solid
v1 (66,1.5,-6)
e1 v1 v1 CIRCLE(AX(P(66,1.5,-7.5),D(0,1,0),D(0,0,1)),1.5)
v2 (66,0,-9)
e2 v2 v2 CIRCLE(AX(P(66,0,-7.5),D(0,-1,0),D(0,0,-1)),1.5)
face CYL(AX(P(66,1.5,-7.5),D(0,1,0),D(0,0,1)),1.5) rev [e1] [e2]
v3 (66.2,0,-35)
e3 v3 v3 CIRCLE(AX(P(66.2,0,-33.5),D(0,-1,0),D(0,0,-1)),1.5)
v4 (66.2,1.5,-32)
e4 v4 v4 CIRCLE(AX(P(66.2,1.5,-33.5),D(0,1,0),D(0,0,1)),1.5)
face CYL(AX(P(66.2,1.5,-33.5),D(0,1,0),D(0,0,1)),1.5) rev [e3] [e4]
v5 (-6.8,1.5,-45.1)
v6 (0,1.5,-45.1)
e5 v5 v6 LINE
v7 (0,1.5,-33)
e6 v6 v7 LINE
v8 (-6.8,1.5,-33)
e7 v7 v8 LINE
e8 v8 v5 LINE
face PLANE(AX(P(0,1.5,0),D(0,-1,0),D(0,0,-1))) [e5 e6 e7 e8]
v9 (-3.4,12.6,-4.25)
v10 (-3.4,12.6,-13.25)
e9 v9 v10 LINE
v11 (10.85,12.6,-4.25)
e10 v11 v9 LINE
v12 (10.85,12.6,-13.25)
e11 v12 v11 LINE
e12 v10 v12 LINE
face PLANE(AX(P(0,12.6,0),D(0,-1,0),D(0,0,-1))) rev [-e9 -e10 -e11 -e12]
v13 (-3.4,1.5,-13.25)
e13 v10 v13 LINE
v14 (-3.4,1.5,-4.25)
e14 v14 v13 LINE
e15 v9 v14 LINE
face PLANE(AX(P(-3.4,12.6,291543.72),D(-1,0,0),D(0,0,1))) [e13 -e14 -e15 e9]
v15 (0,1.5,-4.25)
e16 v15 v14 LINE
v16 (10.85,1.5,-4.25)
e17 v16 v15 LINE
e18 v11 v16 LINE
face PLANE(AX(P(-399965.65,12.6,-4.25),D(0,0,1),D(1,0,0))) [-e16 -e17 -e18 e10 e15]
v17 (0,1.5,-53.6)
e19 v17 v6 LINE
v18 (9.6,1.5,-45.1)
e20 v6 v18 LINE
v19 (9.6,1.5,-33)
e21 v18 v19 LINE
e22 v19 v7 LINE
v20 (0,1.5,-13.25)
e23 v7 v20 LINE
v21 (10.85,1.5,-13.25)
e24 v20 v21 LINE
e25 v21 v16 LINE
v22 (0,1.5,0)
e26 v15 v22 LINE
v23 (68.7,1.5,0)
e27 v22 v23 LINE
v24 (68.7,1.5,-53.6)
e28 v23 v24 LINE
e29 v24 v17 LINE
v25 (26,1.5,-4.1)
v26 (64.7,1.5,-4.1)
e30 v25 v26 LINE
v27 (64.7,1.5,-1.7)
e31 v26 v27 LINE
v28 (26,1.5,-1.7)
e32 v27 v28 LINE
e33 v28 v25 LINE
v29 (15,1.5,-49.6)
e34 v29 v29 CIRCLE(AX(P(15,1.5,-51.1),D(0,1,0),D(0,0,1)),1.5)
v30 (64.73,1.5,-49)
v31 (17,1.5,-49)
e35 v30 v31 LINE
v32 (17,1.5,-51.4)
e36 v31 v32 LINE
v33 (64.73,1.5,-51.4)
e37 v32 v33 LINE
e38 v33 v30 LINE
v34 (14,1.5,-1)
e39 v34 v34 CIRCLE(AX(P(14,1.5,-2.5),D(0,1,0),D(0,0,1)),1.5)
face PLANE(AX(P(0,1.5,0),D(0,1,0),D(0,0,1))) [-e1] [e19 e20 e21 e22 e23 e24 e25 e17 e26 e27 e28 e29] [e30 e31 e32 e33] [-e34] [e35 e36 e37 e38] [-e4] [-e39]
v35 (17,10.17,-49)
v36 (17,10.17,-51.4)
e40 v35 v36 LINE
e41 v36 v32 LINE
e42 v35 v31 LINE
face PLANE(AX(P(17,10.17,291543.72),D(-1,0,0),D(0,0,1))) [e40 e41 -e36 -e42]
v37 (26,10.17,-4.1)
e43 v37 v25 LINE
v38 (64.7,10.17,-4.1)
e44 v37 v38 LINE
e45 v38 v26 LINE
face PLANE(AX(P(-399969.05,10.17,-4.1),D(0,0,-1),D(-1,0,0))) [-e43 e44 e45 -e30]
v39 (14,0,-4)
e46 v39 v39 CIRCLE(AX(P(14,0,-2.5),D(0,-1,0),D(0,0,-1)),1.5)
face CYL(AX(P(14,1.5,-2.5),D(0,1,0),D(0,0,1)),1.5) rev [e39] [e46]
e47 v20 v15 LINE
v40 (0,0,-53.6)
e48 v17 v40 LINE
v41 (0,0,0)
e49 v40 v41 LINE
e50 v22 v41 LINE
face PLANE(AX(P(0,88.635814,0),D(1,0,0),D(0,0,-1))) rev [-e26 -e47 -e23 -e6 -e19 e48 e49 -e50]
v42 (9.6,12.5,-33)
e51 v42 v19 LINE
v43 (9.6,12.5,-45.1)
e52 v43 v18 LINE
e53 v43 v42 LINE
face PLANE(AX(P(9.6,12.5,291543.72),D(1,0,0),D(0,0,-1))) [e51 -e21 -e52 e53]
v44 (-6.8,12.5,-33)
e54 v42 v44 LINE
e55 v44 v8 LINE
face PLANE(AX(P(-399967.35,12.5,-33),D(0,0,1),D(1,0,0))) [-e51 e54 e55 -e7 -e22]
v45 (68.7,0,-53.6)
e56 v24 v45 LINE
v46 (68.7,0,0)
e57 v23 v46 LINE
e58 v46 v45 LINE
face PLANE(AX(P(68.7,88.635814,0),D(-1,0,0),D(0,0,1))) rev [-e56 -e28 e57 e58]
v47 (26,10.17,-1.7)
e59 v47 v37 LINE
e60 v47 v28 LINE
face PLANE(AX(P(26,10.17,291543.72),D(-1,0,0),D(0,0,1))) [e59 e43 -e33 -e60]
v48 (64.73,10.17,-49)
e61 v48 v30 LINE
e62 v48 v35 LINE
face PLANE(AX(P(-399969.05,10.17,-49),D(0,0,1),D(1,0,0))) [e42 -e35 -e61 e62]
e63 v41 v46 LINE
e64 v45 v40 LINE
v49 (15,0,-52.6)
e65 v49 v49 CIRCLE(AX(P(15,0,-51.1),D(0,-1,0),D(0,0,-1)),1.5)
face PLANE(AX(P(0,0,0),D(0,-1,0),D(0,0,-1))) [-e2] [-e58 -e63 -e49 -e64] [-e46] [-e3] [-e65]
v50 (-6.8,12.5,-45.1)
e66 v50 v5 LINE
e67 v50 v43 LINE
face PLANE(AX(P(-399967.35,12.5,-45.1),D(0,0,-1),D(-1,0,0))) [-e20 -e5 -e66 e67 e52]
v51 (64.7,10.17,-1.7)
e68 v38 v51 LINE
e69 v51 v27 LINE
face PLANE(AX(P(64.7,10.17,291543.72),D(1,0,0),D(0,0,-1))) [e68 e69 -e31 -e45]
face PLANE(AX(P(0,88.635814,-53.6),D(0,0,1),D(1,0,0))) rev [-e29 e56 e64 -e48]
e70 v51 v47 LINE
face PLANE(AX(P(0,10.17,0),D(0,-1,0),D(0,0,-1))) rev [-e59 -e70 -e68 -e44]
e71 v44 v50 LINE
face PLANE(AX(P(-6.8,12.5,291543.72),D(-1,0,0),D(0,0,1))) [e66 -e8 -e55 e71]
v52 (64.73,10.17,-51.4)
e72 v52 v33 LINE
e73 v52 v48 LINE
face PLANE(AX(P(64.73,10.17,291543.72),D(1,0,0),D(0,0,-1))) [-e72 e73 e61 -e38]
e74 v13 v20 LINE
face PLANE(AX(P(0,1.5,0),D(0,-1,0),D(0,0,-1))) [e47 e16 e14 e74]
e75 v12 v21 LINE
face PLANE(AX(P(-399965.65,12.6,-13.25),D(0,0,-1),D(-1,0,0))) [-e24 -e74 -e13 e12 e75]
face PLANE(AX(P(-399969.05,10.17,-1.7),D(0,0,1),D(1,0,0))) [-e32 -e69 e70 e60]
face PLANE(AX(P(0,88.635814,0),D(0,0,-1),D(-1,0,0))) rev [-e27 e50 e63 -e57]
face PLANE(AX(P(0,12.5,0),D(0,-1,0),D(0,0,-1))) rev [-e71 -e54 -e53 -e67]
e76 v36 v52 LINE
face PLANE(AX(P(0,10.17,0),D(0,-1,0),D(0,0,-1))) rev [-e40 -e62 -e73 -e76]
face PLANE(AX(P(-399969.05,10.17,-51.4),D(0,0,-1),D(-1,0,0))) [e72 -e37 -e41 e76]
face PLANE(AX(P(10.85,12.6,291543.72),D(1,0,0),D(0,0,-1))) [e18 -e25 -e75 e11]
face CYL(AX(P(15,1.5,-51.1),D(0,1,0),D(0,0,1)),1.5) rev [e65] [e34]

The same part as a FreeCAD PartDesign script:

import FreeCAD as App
import Part
import Sketcher
from FreeCAD import Vector
Q = App.Units.Quantity

doc = App.newDocument("Part")
body = doc.addObject("PartDesign::Body", "Body")

# Sketch on XZ plane
sketch1 = body.newObject("Sketcher::SketchObject", "Sketch")
sketch1.AttachmentSupport = (doc.getObject("XZ_Plane"), [""])
sketch1.MapMode = "FlatFace"
sketch1.addGeometry([
    Part.LineSegment(Vector(0, -54, 0), Vector(0, 0, 0)),
    Part.LineSegment(Vector(0, 0, 0), Vector(69, 0, 0)),
    Part.LineSegment(Vector(69, 0, 0), Vector(69, -54, 0)),
    Part.LineSegment(Vector(69, -54, 0), Vector(0, -54, 0)),
], False)
sketch1.addConstraint([
    Sketcher.Constraint("Coincident", 0, 2, 1, 1),
    Sketcher.Constraint("Coincident", 1, 2, 2, 1),
    Sketcher.Constraint("Coincident", 2, 2, 3, 1),
    Sketcher.Constraint("Coincident", 3, 2, 0, 1),
    Sketcher.Constraint("Vertical", 0),
    Sketcher.Constraint("Horizontal", 1),
    Sketcher.Constraint("Vertical", 2),
    Sketcher.Constraint("Horizontal", 3),
    Sketcher.Constraint("Coincident", 0, 2, -1, 1),
    Sketcher.Constraint("DistanceX", 1, 1, 1, 2, Q("68.7 mm")),
    Sketcher.Constraint("DistanceY", 0, 1, 0, 2, Q("53.6 mm")),
])
pad1 = body.newObject("PartDesign::Pad", "Pad")
pad1.Profile = sketch1
pad1.Length = 1.5
pad1.Reversed = True

# Sketch on XZ plane
sketch2 = body.newObject("Sketcher::SketchObject", "Sketch001")
sketch2.AttachmentSupport = (doc.getObject("XZ_Plane"), [""])
sketch2.MapMode = "FlatFace"
sketch2.AttachmentOffset = App.Placement(Vector(0, 0, -1.5), App.Rotation())
sketch2.addGeometry([
    Part.LineSegment(Vector(-3, -13, 0), Vector(-3, -4, 0)),
    Part.LineSegment(Vector(-3, -4, 0), Vector(11, -4, 0)),
    Part.LineSegment(Vector(11, -4, 0), Vector(11, -13, 0)),
    Part.LineSegment(Vector(11, -13, 0), Vector(-3, -13, 0)),
], False)
sketch2.addConstraint([
    Sketcher.Constraint("Coincident", 0, 2, 1, 1),
    Sketcher.Constraint("Coincident", 1, 2, 2, 1),
    Sketcher.Constraint("Coincident", 2, 2, 3, 1),
    Sketcher.Constraint("Coincident", 3, 2, 0, 1),
    Sketcher.Constraint("Vertical", 0),
    Sketcher.Constraint("Horizontal", 1),
    Sketcher.Constraint("Vertical", 2),
    Sketcher.Constraint("Horizontal", 3),
    Sketcher.Constraint("DistanceY", 0, 1, 0, 2, Q("9 mm")),
    Sketcher.Constraint("DistanceX", 1, 1, 1, 2, Q("14.25 mm")),
    Sketcher.Constraint("DistanceX", 0, 2, -1, 1, Q("3.4 mm")),
    Sketcher.Constraint("DistanceY", 0, 2, -1, 1, Q("4.25 mm")),
])
pad2 = body.newObject("PartDesign::Pad", "Pad001")
pad2.Profile = sketch2
pad2.Length = 11.1
pad2.Reversed = True

# Sketch on XZ plane
sketch3 = body.newObject("Sketcher::SketchObject", "Sketch002")
sketch3.AttachmentSupport = (doc.getObject("XZ_Plane"), [""])
sketch3.MapMode = "FlatFace"
sketch3.AttachmentOffset = App.Placement(Vector(0, 0, -1.5), App.Rotation())
sketch3.addGeometry([
    Part.LineSegment(Vector(-7, -45, 0), Vector(-7, -33, 0)),
    Part.LineSegment(Vector(-7, -33, 0), Vector(10, -33, 0)),
    Part.LineSegment(Vector(10, -33, 0), Vector(10, -45, 0)),
    Part.LineSegment(Vector(10, -45, 0), Vector(-7, -45, 0)),
], False)
sketch3.addConstraint([
    Sketcher.Constraint("Coincident", 0, 2, 1, 1),
    Sketcher.Constraint("Coincident", 1, 2, 2, 1),
    Sketcher.Constraint("Coincident", 2, 2, 3, 1),
    Sketcher.Constraint("Coincident", 3, 2, 0, 1),
    Sketcher.Constraint("Vertical", 0),
    Sketcher.Constraint("Horizontal", 1),
    Sketcher.Constraint("Vertical", 2),
    Sketcher.Constraint("Horizontal", 3),
    Sketcher.Constraint("DistanceX", 1, 1, 1, 2, Q("16.4 mm")),
    Sketcher.Constraint("DistanceY", 0, 1, 0, 2, Q("12.1 mm")),
    Sketcher.Constraint("DistanceY", 0, 2, -1, 1, Q("33 mm")),
    Sketcher.Constraint("DistanceX", 0, 2, -1, 1, Q("6.8 mm")),
])
pad3 = body.newObject("PartDesign::Pad", "Pad002")
pad3.Profile = sketch3
pad3.Length = 11
pad3.Reversed = True

# Sketch on XZ plane
sketch4 = body.newObject("Sketcher::SketchObject", "Sketch003")
sketch4.AttachmentSupport = (doc.getObject("XZ_Plane"), [""])
sketch4.MapMode = "FlatFace"
sketch4.AttachmentOffset = App.Placement(Vector(0, 0, -1.5), App.Rotation())
sketch4.addGeometry([
    Part.LineSegment(Vector(17, -51.4, 0), Vector(17, -49, 0)),  # 0
    Part.LineSegment(Vector(17, -49, 0), Vector(64.7, -49, 0)),  # 1
    Part.LineSegment(Vector(64.7, -49, 0), Vector(64.7, -51.4, 0)),  # 2
    Part.LineSegment(Vector(64.7, -51.4, 0), Vector(17, -51.4, 0)),  # 3
    Part.LineSegment(Vector(26, -4.1, 0), Vector(26, -1.7, 0)),  # 4
    Part.LineSegment(Vector(26, -1.7, 0), Vector(64.7, -1.7, 0)),  # 5
    Part.LineSegment(Vector(64.7, -1.7, 0), Vector(64.7, -4.1, 0)),  # 6
    Part.LineSegment(Vector(64.7, -4.1, 0), Vector(26, -4.1, 0)),  # 7
], False)
sketch4.addConstraint([
    Sketcher.Constraint("Coincident", 0, 2, 1, 1),
    Sketcher.Constraint("Coincident", 1, 2, 2, 1),
    Sketcher.Constraint("Coincident", 2, 2, 3, 1),
    Sketcher.Constraint("Coincident", 3, 2, 0, 1),
    Sketcher.Constraint("Coincident", 4, 2, 5, 1),
    Sketcher.Constraint("Coincident", 5, 2, 6, 1),
    Sketcher.Constraint("Coincident", 6, 2, 7, 1),
    Sketcher.Constraint("Coincident", 7, 2, 4, 1),
    Sketcher.Constraint("Vertical", 0),
    Sketcher.Constraint("Horizontal", 1),
    Sketcher.Constraint("Vertical", 2),
    Sketcher.Constraint("Horizontal", 3),
    Sketcher.Constraint("Vertical", 4),
    Sketcher.Constraint("Horizontal", 5),
    Sketcher.Constraint("Vertical", 6),
    Sketcher.Constraint("Horizontal", 7),
    Sketcher.Constraint("Equal", 2, 4),
    Sketcher.Constraint("DistanceX", 5, 1, 5, 2, Q("38.7 mm")),
    Sketcher.Constraint("DistanceY", 0, 1, 0, 2, Q("2.4 mm")),
    Sketcher.Constraint("DistanceX", -1, 1, 0, 2, Q("17 mm")),
    Sketcher.Constraint("DistanceY", 0, 2, -1, 1, Q("49 mm")),
    Sketcher.Constraint("DistanceX", -1, 1, 4, 2, Q("26 mm")),
    Sketcher.Constraint("DistanceX", 1, 1, 1, 2, Q("47.73 mm")),
    Sketcher.Constraint("DistanceY", 4, 2, -1, 1, Q("1.7 mm")),
])
pad4 = body.newObject("PartDesign::Pad", "Pad003")
pad4.Profile = sketch4
pad4.Length = 8.67
pad4.Reversed = True

# Sketch on XZ plane
sketch5 = body.newObject("Sketcher::SketchObject", "Sketch004")
sketch5.AttachmentSupport = (doc.getObject("XZ_Plane"), [""])
sketch5.MapMode = "FlatFace"
sketch5.AttachmentOffset = App.Placement(Vector(0, 0, -1.5), App.Rotation())
sketch5.addGeometry([
    Part.Circle(Vector(15, -51.1, 0), Vector(0, 0, 1), 1.5),
    Part.Circle(Vector(14, -2.5, 0), Vector(0, 0, 1), 1.5),
    Part.Circle(Vector(66, -7.5, 0), Vector(0, 0, 1), 1.5),
    Part.Circle(Vector(66.2, -33.5, 0), Vector(0, 0, 1), 1.5),
], False)
sketch5.addConstraint([
    Sketcher.Constraint("Equal", 0, 1),
    Sketcher.Constraint("Equal", 1, 2),
    Sketcher.Constraint("Equal", 2, 3),
    Sketcher.Constraint("Diameter", 0, Q("3 mm")),
    Sketcher.Constraint("DistanceX", -1, 1, 0, 3, Q("15 mm")),
    Sketcher.Constraint("DistanceX", -1, 1, 1, 3, Q("14 mm")),
    Sketcher.Constraint("DistanceX", -1, 1, 2, 3, Q("66 mm")),
    Sketcher.Constraint("DistanceY", 2, 3, 1, 3, Q("5 mm")),
    Sketcher.Constraint("DistanceY", 3, 3, 2, 3, Q("26 mm")),
    Sketcher.Constraint("DistanceY", 0, 3, -1, 1, Q("51.1 mm")),
    Sketcher.Constraint("DistanceY", 1, 3, -1, 1, Q("2.5 mm")),
    Sketcher.Constraint("DistanceX", -1, 1, 3, 3, Q("66.2 mm")),
])
doc.recompute()
hole = body.newObject("PartDesign::Hole", "Hole")
hole.Profile = sketch5
hole.ThreadType = "None"
hole.Diameter = 3
hole.DepthType = "Dimension"
hole.Depth = 7.5
hole.DrillPoint = "Angled"
hole.DrillPointAngle = 118
hole.Reversed = True

doc.recompute()
